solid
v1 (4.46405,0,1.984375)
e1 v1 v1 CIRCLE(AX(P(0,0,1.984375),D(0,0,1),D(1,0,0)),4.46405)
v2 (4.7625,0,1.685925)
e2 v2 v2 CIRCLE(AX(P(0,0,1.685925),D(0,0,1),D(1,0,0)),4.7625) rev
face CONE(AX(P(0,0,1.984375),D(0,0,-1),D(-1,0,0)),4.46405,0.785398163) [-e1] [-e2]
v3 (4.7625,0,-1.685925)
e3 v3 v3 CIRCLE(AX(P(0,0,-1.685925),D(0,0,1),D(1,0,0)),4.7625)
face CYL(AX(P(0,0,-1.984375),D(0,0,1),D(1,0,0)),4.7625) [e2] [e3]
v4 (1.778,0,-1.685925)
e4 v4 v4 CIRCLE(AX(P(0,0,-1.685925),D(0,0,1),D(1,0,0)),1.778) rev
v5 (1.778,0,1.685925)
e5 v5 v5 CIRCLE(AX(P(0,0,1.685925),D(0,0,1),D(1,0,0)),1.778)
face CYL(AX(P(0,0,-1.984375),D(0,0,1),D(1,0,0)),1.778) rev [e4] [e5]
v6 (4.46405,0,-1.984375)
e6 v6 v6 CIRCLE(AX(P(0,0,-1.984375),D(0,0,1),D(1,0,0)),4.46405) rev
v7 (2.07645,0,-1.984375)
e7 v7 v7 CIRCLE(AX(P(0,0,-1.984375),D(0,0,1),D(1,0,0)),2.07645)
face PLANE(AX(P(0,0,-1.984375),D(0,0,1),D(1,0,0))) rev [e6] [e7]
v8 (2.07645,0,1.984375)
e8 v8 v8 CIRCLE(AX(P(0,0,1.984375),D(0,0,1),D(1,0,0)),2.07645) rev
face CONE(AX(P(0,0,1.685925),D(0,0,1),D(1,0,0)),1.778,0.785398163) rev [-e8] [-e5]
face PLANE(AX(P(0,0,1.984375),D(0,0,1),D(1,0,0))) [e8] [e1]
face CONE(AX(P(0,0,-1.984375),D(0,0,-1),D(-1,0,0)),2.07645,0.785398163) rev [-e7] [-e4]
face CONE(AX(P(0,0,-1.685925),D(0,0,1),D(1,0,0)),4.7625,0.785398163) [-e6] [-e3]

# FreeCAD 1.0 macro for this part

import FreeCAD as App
import Part
import Sketcher

V = App.Vector
Q = App.Units.Quantity


def edges_at(feature, points):
    """Names of the edges that pass closest to the given points."""
    edges = feature.Shape.Edges
    near = lambda p: min(range(len(edges)), key=lambda i: edges[i].distToShape(Part.Vertex(*p))[0])
    return sorted({f"Edge{near(p) + 1}" for p in points})

doc = App.newDocument("Part")
body = doc.addObject("PartDesign::Body", "Body")

# Sketch on XY plane
sketch1 = body.newObject("Sketcher::SketchObject", "Sketch")
sketch1.AttachmentSupport = (doc.getObject("XY_Plane"), [""])
sketch1.MapMode = "FlatFace"
sketch1.addGeometry([
    Part.Circle(V(0, 0, 0), V(0, 0, 1), 4.8),
    Part.Circle(V(0, 0, 0), V(0, 0, 1), 1.8),
], False)
sketch1.addConstraint([
    Sketcher.Constraint("Coincident", 0, 3, -1, 1),
    Sketcher.Constraint("Coincident", 1, 3, -1, 1),
    Sketcher.Constraint("Diameter", 1, Q("0.14 in")),
    Sketcher.Constraint("Diameter", 0, Q("0.375 in")),
])
pad1 = body.newObject("PartDesign::Pad", "Pad")
pad1.Profile = sketch1
pad1.Type = "TwoLengths"
pad1.Length = Q("0.078125 in")
pad1.Length2 = Q("0.078125 in")
doc.recompute()

chamfer = body.newObject("PartDesign::Chamfer", "Chamfer")
chamfer.Base = (pad1, edges_at(pad1, [
    (-4.763, 0, -1.984),
    (-1.778, 0, -1.984),
    (-4.763, 0, 1.984),
    (-1.778, 0, 1.984),
]))
chamfer.Size = 0.29845

doc.recompute()
